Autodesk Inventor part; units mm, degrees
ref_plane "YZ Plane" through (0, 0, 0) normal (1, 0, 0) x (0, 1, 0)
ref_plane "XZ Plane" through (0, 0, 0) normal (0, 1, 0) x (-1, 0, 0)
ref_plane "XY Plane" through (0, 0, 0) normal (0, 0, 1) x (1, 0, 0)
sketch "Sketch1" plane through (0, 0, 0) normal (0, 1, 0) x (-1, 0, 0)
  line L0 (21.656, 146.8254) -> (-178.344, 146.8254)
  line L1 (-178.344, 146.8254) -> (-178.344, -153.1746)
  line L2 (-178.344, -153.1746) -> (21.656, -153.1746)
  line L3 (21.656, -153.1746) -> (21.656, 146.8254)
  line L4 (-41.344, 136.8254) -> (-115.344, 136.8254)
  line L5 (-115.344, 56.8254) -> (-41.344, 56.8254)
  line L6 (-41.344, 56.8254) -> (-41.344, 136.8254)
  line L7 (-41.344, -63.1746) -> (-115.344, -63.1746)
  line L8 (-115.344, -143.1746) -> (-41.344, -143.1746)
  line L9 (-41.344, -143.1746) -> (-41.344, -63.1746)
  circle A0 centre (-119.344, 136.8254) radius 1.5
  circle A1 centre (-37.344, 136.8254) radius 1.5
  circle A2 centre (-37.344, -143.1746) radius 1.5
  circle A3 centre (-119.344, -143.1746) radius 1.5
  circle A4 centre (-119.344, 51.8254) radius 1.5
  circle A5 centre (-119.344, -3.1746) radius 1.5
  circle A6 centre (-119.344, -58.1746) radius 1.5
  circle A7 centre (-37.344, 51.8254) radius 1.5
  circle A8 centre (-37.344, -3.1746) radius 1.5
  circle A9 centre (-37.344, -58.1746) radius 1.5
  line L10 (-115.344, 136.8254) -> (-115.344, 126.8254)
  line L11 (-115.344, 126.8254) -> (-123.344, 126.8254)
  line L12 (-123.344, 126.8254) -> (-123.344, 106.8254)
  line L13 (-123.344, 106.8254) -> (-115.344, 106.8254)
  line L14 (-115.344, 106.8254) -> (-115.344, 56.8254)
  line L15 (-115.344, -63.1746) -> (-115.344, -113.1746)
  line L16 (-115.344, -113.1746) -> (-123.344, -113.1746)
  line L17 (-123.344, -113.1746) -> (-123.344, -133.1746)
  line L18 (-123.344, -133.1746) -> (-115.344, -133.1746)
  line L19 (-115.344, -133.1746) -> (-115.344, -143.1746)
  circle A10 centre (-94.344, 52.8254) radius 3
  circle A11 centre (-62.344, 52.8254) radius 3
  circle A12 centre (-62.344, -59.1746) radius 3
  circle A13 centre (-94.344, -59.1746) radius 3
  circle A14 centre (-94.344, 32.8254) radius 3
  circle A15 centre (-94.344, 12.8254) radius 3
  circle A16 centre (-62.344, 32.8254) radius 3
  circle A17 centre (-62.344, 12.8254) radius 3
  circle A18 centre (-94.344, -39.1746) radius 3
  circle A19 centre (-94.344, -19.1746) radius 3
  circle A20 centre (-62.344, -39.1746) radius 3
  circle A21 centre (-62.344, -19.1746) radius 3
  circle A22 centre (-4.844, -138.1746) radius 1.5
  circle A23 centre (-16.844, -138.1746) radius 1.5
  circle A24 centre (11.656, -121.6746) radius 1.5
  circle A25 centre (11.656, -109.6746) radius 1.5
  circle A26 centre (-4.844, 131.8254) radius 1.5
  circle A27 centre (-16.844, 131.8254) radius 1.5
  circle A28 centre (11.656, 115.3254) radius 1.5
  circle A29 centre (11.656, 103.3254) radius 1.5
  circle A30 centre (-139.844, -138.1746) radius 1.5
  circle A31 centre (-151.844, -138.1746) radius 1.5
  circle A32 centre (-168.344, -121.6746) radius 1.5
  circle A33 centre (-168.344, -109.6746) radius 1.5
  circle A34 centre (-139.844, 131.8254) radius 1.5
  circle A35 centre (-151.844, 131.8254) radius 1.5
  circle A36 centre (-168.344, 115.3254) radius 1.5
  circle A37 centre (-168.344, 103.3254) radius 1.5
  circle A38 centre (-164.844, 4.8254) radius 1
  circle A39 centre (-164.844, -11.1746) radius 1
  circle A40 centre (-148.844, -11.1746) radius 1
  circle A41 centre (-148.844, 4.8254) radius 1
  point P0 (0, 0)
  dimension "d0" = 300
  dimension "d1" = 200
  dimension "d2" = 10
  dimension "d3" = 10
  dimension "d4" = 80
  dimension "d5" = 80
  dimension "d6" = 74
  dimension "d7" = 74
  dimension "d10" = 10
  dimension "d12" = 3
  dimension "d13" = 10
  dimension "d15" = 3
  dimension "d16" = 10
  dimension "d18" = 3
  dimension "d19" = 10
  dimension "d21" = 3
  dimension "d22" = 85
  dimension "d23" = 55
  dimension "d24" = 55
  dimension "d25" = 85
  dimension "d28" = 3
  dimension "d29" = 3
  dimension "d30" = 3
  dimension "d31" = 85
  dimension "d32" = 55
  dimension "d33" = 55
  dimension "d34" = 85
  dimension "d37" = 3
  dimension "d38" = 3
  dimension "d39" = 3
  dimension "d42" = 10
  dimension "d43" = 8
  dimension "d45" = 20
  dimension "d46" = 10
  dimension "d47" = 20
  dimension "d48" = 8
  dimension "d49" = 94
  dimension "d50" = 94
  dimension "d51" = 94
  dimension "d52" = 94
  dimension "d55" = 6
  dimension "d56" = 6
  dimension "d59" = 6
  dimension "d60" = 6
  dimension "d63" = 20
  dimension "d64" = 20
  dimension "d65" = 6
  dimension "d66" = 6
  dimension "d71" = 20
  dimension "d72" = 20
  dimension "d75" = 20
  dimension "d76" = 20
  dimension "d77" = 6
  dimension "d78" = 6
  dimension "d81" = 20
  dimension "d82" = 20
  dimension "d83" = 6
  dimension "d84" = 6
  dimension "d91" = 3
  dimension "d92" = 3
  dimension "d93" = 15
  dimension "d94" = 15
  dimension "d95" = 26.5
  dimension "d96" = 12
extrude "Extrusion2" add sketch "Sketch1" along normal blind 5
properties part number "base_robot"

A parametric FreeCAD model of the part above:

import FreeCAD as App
import Part
import Sketcher

V = App.Vector
Q = App.Units.Quantity

doc = App.newDocument("Part")
params = doc.addObject("Spreadsheet::Sheet", "Params")
for row, (alias, value) in enumerate([
    ("sketch1_diameter", "3 mm"),
    ("sketch1_diameter2", "6 mm"),
    ("sketch1_width", "200 mm"),
    ("sketch1_width2", "74 mm"),
    ("sketch1_width3", "8 mm"),
    ("pad1_length", "5 mm"),
], start=1):
    params.set(f"A{row}", alias)
    params.set(f"B{row}", "=" + value)
    params.setAlias(f"B{row}", alias)

body = doc.addObject("PartDesign::Body", "Body")

sketch1 = body.newObject("Sketcher::SketchObject", "Sketch")
sketch1.AttachmentSupport = (doc.getObject("XZ_Plane"), [""])
sketch1.MapMode = "FlatFace"
sketch1.addGeometry([
    Part.LineSegment(V(-21.7, -153.2, 0), V(-21.7, 146.8, 0)),
    Part.LineSegment(V(-21.7, 146.8, 0), V(178.3, 146.8, 0)),
    Part.LineSegment(V(178.3, 146.8, 0), V(178.3, -153.2, 0)),
    Part.LineSegment(V(178.3, -153.2, 0), V(-21.7, -153.2, 0)),
    Part.Circle(V(168.3, -121.7, 0), V(0, 0, 1), 1.5),
    Part.Circle(V(151.8, -138.2, 0), V(0, 0, 1), 1.5),
    Part.Circle(V(139.8, -138.2, 0), V(0, 0, 1), 1.5),
    Part.Circle(V(168.3, -109.7, 0), V(0, 0, 1), 1.5),
    Part.Circle(V(119.3, -143.2, 0), V(0, 0, 1), 1.5),
    Part.LineSegment(V(115.3, -63.2, 0), V(41.3, -63.2, 0)),
    Part.LineSegment(V(41.3, -63.2, 0), V(41.3, -143.2, 0)),
    Part.LineSegment(V(41.3, -143.2, 0), V(115.3, -143.2, 0)),
    Part.LineSegment(V(115.3, -143.2, 0), V(115.3, -133.2, 0)),
    Part.LineSegment(V(115.3, -133.2, 0), V(123.3, -133.2, 0)),
    Part.LineSegment(V(123.3, -133.2, 0), V(123.3, -113.2, 0)),
    Part.LineSegment(V(123.3, -113.2, 0), V(115.3, -113.2, 0)),
    Part.LineSegment(V(115.3, -113.2, 0), V(115.3, -63.2, 0)),
    Part.Circle(V(164.8, -11.2, 0), V(0, 0, 1), 1),
    Part.Circle(V(148.8, -11.2, 0), V(0, 0, 1), 1),
    Part.Circle(V(119.3, -58.2, 0), V(0, 0, 1), 1.5),
    Part.Circle(V(94.3, -59.2, 0), V(0, 0, 1), 3),
    Part.Circle(V(94.3, -39.2, 0), V(0, 0, 1), 3),
    Part.Circle(V(94.3, -19.2, 0), V(0, 0, 1), 3),
    Part.Circle(V(37.3, -143.2, 0), V(0, 0, 1), 1.5),
    Part.Circle(V(16.8, -138.2, 0), V(0, 0, 1), 1.5),
    Part.Circle(V(4.8, -138.2, 0), V(0, 0, 1), 1.5),
    Part.Circle(V(-11.7, -121.7, 0), V(0, 0, 1), 1.5),
    Part.Circle(V(-11.7, -109.7, 0), V(0, 0, 1), 1.5),
    Part.Circle(V(62.3, -59.2, 0), V(0, 0, 1), 3),
    Part.Circle(V(37.3, -58.2, 0), V(0, 0, 1), 1.5),
    Part.Circle(V(62.3, -39.2, 0), V(0, 0, 1), 3),
    Part.Circle(V(62.3, -19.2, 0), V(0, 0, 1), 3),
    Part.Circle(V(164.8, 4.8, 0), V(0, 0, 1), 1),
    Part.Circle(V(148.8, 4.8, 0), V(0, 0, 1), 1),
    Part.Circle(V(119.3, -3.2, 0), V(0, 0, 1), 1.5),
    Part.Circle(V(94.3, 12.8, 0), V(0, 0, 1), 3),
    Part.Circle(V(94.3, 32.8, 0), V(0, 0, 1), 3),
    Part.Circle(V(119.3, 51.8, 0), V(0, 0, 1), 1.5),
    Part.Circle(V(94.3, 52.8, 0), V(0, 0, 1), 3),
    Part.Circle(V(168.3, 103.3, 0), V(0, 0, 1), 1.5),
    Part.Circle(V(168.3, 115.3, 0), V(0, 0, 1), 1.5),
    Part.Circle(V(151.8, 131.8, 0), V(0, 0, 1), 1.5),
    Part.Circle(V(139.8, 131.8, 0), V(0, 0, 1), 1.5),
    Part.LineSegment(V(115.3, 136.8, 0), V(41.3, 136.8, 0)),
    Part.LineSegment(V(41.3, 136.8, 0), V(41.3, 56.8, 0)),
    Part.LineSegment(V(41.3, 56.8, 0), V(115.3, 56.8, 0)),
    Part.LineSegment(V(115.3, 56.8, 0), V(115.3, 106.8, 0)),
    Part.LineSegment(V(115.3, 106.8, 0), V(123.3, 106.8, 0)),
    Part.LineSegment(V(123.3, 106.8, 0), V(123.3, 126.8, 0)),
    Part.LineSegment(V(123.3, 126.8, 0), V(115.3, 126.8, 0)),
    Part.LineSegment(V(115.3, 126.8, 0), V(115.3, 136.8, 0)),
    Part.Circle(V(119.3, 136.8, 0), V(0, 0, 1), 1.5),
    Part.Circle(V(62.3, 12.8, 0), V(0, 0, 1), 3),
    Part.Circle(V(62.3, 32.8, 0), V(0, 0, 1), 3),
    Part.Circle(V(37.3, -3.2, 0), V(0, 0, 1), 1.5),
    Part.Circle(V(62.3, 52.8, 0), V(0, 0, 1), 3),
    Part.Circle(V(37.3, 51.8, 0), V(0, 0, 1), 1.5),
    Part.Circle(V(37.3, 136.8, 0), V(0, 0, 1), 1.5),
    Part.Circle(V(-11.7, 103.3, 0), V(0, 0, 1), 1.5),
    Part.Circle(V(16.8, 131.8, 0), V(0, 0, 1), 1.5),
    Part.Circle(V(4.8, 131.8, 0), V(0, 0, 1), 1.5),
    Part.Circle(V(-11.7, 115.3, 0), V(0, 0, 1), 1.5),
], False)
sketch1.addConstraint([
    Sketcher.Constraint("Coincident", 0, 2, 1, 1),
    Sketcher.Constraint("Coincident", 1, 2, 2, 1),
    Sketcher.Constraint("Coincident", 2, 2, 3, 1),
    Sketcher.Constraint("Coincident", 3, 2, 0, 1),
    Sketcher.Constraint("Coincident", 9, 2, 10, 1),
    Sketcher.Constraint("Coincident", 10, 2, 11, 1),
    Sketcher.Constraint("Coincident", 11, 2, 12, 1),
    Sketcher.Constraint("Coincident", 12, 2, 13, 1),
    Sketcher.Constraint("Coincident", 13, 2, 14, 1),
    Sketcher.Constraint("Coincident", 14, 2, 15, 1),
    Sketcher.Constraint("Coincident", 15, 2, 16, 1),
    Sketcher.Constraint("Coincident", 16, 2, 9, 1),
    Sketcher.Constraint("Coincident", 43, 2, 44, 1),
    Sketcher.Constraint("Coincident", 44, 2, 45, 1),
    Sketcher.Constraint("Coincident", 45, 2, 46, 1),
    Sketcher.Constraint("Coincident", 46, 2, 47, 1),
    Sketcher.Constraint("Coincident", 47, 2, 48, 1),
    Sketcher.Constraint("Coincident", 48, 2, 49, 1),
    Sketcher.Constraint("Coincident", 49, 2, 50, 1),
    Sketcher.Constraint("Coincident", 50, 2, 43, 1),
    Sketcher.Constraint("Vertical", 0),
    Sketcher.Constraint("Horizontal", 1),
    Sketcher.Constraint("Vertical", 2),
    Sketcher.Constraint("Horizontal", 3),
    Sketcher.Constraint("Horizontal", 9),
    Sketcher.Constraint("Vertical", 10),
    Sketcher.Constraint("Horizontal", 11),
    Sketcher.Constraint("Vertical", 12),
    Sketcher.Constraint("Horizontal", 13),
    Sketcher.Constraint("Vertical", 14),
    Sketcher.Constraint("Horizontal", 15),
    Sketcher.Constraint("Vertical", 16),
    Sketcher.Constraint("Horizontal", 43),
    Sketcher.Constraint("Vertical", 44),
    Sketcher.Constraint("Horizontal", 45),
    Sketcher.Constraint("Vertical", 46),
    Sketcher.Constraint("Horizontal", 47),
    Sketcher.Constraint("Vertical", 48),
    Sketcher.Constraint("Horizontal", 49),
    Sketcher.Constraint("Vertical", 50),
    Sketcher.Constraint("Equal", 4, 5),
    Sketcher.Constraint("Equal", 5, 6),
    Sketcher.Constraint("Equal", 6, 7),
    Sketcher.Constraint("Equal", 7, 8),
    Sketcher.Constraint("Equal", 17, 18),
    Sketcher.Constraint("Equal", 8, 19),
    Sketcher.Constraint("Equal", 20, 21),
    Sketcher.Constraint("Equal", 21, 22),
    Sketcher.Constraint("Equal", 19, 23),
    Sketcher.Constraint("Equal", 23, 24),
    Sketcher.Constraint("Equal", 24, 25),
    Sketcher.Constraint("Equal", 25, 26),
    Sketcher.Constraint("Equal", 26, 27),
    Sketcher.Constraint("Equal", 22, 28),
    Sketcher.Constraint("Equal", 27, 29),
    Sketcher.Constraint("Equal", 28, 30),
    Sketcher.Constraint("Equal", 30, 31),
    Sketcher.Constraint("Equal", 18, 32),
    Sketcher.Constraint("Equal", 32, 33),
    Sketcher.Constraint("Equal", 29, 34),
    Sketcher.Constraint("Equal", 31, 35),
    Sketcher.Constraint("Equal", 35, 36),
    Sketcher.Constraint("Equal", 34, 37),
    Sketcher.Constraint("Equal", 36, 38),
    Sketcher.Constraint("Equal", 37, 39),
    Sketcher.Constraint("Equal", 39, 40),
    Sketcher.Constraint("Equal", 40, 41),
    Sketcher.Constraint("Equal", 41, 42),
    Sketcher.Constraint("Equal", 42, 51),
    Sketcher.Constraint("Equal", 38, 52),
    Sketcher.Constraint("Equal", 52, 53),
    Sketcher.Constraint("Equal", 51, 54),
    Sketcher.Constraint("Equal", 53, 55),
    Sketcher.Constraint("Equal", 54, 56),
    Sketcher.Constraint("Equal", 56, 57),
    Sketcher.Constraint("Equal", 57, 58),
    Sketcher.Constraint("Equal", 58, 59),
    Sketcher.Constraint("Equal", 59, 60),
    Sketcher.Constraint("Equal", 60, 61),
    Sketcher.Constraint("Horizontal", 5, 3, 6, 3),
    Sketcher.Constraint("Horizontal", 17, 3, 18, 3),
    Sketcher.Constraint("Horizontal", 8, 3, 23, 3),
    Sketcher.Constraint("Horizontal", 6, 3, 24, 3),
    Sketcher.Constraint("Horizontal", 24, 3, 25, 3),
    Sketcher.Constraint("Horizontal", 4, 3, 26, 3),
    Sketcher.Constraint("Horizontal", 7, 3, 27, 3),
    Sketcher.Constraint("Horizontal", 20, 3, 28, 3),
    Sketcher.Constraint("Horizontal", 19, 3, 29, 3),
    Sketcher.Constraint("Horizontal", 21, 3, 30, 3),
    Sketcher.Constraint("Horizontal", 22, 3, 31, 3),
    Sketcher.Constraint("Horizontal", 32, 3, 33, 3),
    Sketcher.Constraint("Horizontal", 41, 3, 42, 3),
    Sketcher.Constraint("Horizontal", 35, 3, 52, 3),
    Sketcher.Constraint("Horizontal", 36, 3, 53, 3),
    Sketcher.Constraint("Horizontal", 34, 3, 54, 3),
    Sketcher.Constraint("Horizontal", 38, 3, 55, 3),
    Sketcher.Constraint("Horizontal", 37, 3, 56, 3),
    Sketcher.Constraint("Horizontal", 51, 3, 57, 3),
    Sketcher.Constraint("Horizontal", 39, 3, 58, 3),
    Sketcher.Constraint("Horizontal", 42, 3, 59, 3),
    Sketcher.Constraint("Horizontal", 59, 3, 60, 3),
    Sketcher.Constraint("Horizontal", 40, 3, 61, 3),
    Sketcher.Constraint("Horizontal", 23, 3, 10, 2),
    Sketcher.Constraint("Horizontal", 57, 3, 43, 2),
    Sketcher.Constraint("Vertical", 4, 3, 7, 3),
    Sketcher.Constraint("Vertical", 8, 3, 19, 3),
    Sketcher.Constraint("Vertical", 20, 3, 21, 3),
    Sketcher.Constraint("Vertical", 21, 3, 22, 3),
    Sketcher.Constraint("Vertical", 26, 3, 27, 3),
    Sketcher.Constraint("Vertical", 23, 3, 29, 3),
    Sketcher.Constraint("Vertical", 28, 3, 30, 3),
    Sketcher.Constraint("Vertical", 30, 3, 31, 3),
    Sketcher.Constraint("Vertical", 17, 3, 32, 3),
    Sketcher.Constraint("Vertical", 18, 3, 33, 3),
    Sketcher.Constraint("Vertical", 19, 3, 34, 3),
    Sketcher.Constraint("Vertical", 22, 3, 35, 3),
    Sketcher.Constraint("Vertical", 35, 3, 36, 3),
    Sketcher.Constraint("Vertical", 34, 3, 37, 3),
    Sketcher.Constraint("Vertical", 36, 3, 38, 3),
    Sketcher.Constraint("Vertical", 7, 3, 39, 3),
    Sketcher.Constraint("Vertical", 39, 3, 40, 3),
    Sketcher.Constraint("Vertical", 5, 3, 41, 3),
    Sketcher.Constraint("Vertical", 6, 3, 42, 3),
    Sketcher.Constraint("Vertical", 37, 3, 51, 3),
    Sketcher.Constraint("Vertical", 31, 3, 52, 3),
    Sketcher.Constraint("Vertical", 52, 3, 53, 3),
    Sketcher.Constraint("Vertical", 29, 3, 54, 3),
    Sketcher.Constraint("Vertical", 53, 3, 55, 3),
    Sketcher.Constraint("Vertical", 54, 3, 56, 3),
    Sketcher.Constraint("Vertical", 56, 3, 57, 3),
    Sketcher.Constraint("Vertical", 27, 3, 58, 3),
    Sketcher.Constraint("Vertical", 24, 3, 59, 3),
    Sketcher.Constraint("Vertical", 25, 3, 60, 3),
    Sketcher.Constraint("Vertical", 58, 3, 61, 3),
    Sketcher.Constraint("Vertical", 12, 2, 15, 2),
    Sketcher.Constraint("Vertical", 10, 2, 43, 2),
    Sketcher.Constraint("Vertical", 16, 2, 45, 2),
    Sketcher.Constraint("Vertical", 14, 2, 47, 2),
    Sketcher.Constraint("Vertical", 46, 2, 49, 2),
    Sketcher.Constraint("Equal", 10, 44),
    Sketcher.Constraint("Equal", 16, 46),
    Sketcher.Constraint("Equal", 14, 48),
    Sketcher.Constraint("Diameter", 4, Q("3 mm")),
    Sketcher.Constraint("Diameter", 20, Q("6 mm")),
    Sketcher.Constraint("DistanceX", 1, 1, 1, 2, Q("200 mm")),
    Sketcher.Constraint("DistanceX", 9, 2, 9, 1, Q("74 mm")),
    Sketcher.Constraint("DistanceX", 13, 1, 13, 2, Q("8 mm")),
    Sketcher.Constraint("DistanceY", 0, 1, 0, 2, Q("300 mm")),
    Sketcher.Constraint("DistanceY", 10, 2, 10, 1, Q("80 mm")),
    Sketcher.Constraint("DistanceY", 12, 1, 12, 2, Q("10 mm")),
    Sketcher.Constraint("DistanceY", 14, 1, 14, 2, Q("20 mm")),
    Sketcher.Constraint("Diameter", 17, Q("2 mm")),
    Sketcher.Constraint("DistanceX", -1, 1, 4, 3, Q("168.344 mm")),
    Sketcher.Constraint("DistanceX", -1, 1, 5, 3, Q("151.844 mm")),
    Sketcher.Constraint("DistanceX", -1, 1, 6, 3, Q("139.844 mm")),
    Sketcher.Constraint("DistanceX", -1, 1, 8, 3, Q("119.344 mm")),
    Sketcher.Constraint("DistanceX", -1, 1, 17, 3, Q("164.844 mm")),
    Sketcher.Constraint("DistanceX", -1, 1, 18, 3, Q("148.844 mm")),
    Sketcher.Constraint("DistanceX", -1, 1, 20, 3, Q("94.344 mm")),
    Sketcher.Constraint("DistanceX", -1, 1, 23, 3, Q("37.344 mm")),
    Sketcher.Constraint("DistanceX", -1, 1, 24, 3, Q("16.844 mm")),
    Sketcher.Constraint("DistanceX", -1, 1, 25, 3, Q("4.844 mm")),
    Sketcher.Constraint("DistanceX", 26, 3, -1, 1, Q("11.656 mm")),
    Sketcher.Constraint("DistanceX", -1, 1, 28, 3, Q("62.344 mm")),
    Sketcher.Constraint("DistanceX", 0, 2, -1, 1, Q("21.656 mm")),
    Sketcher.Constraint("DistanceX", -1, 1, 9, 2, Q("41.344 mm")),
    Sketcher.Constraint("DistanceY", 4, 3, -1, 1, Q("121.6746 mm")),
    Sketcher.Constraint("DistanceY", 5, 3, -1, 1, Q("138.1746 mm")),
    Sketcher.Constraint("DistanceY", 7, 3, -1, 1, Q("109.6746 mm")),
    Sketcher.Constraint("DistanceY", 8, 3, -1, 1, Q("143.1746 mm")),
    Sketcher.Constraint("DistanceY", 17, 3, -1, 1, Q("11.1746 mm")),
    Sketcher.Constraint("DistanceY", 19, 3, -1, 1, Q("58.1746 mm")),
    Sketcher.Constraint("DistanceY", 20, 3, -1, 1, Q("59.1746 mm")),
    Sketcher.Constraint("DistanceY", 21, 3, -1, 1, Q("39.1746 mm")),
    Sketcher.Constraint("DistanceY", 22, 3, -1, 1, Q("19.1746 mm")),
    Sketcher.Constraint("DistanceY", -1, 1, 32, 3, Q("4.8254 mm")),
    Sketcher.Constraint("DistanceY", 34, 3, -1, 1, Q("3.1746 mm")),
    Sketcher.Constraint("DistanceY", -1, 1, 35, 3, Q("12.8254 mm")),
    Sketcher.Constraint("DistanceY", -1, 1, 36, 3, Q("32.8254 mm")),
    Sketcher.Constraint("DistanceY", -1, 1, 37, 3, Q("51.8254 mm")),
    Sketcher.Constraint("DistanceY", -1, 1, 38, 3, Q("52.8254 mm")),
    Sketcher.Constraint("DistanceY", -1, 1, 39, 3, Q("103.3254 mm")),
    Sketcher.Constraint("DistanceY", -1, 1, 40, 3, Q("115.3254 mm")),
    Sketcher.Constraint("DistanceY", -1, 1, 41, 3, Q("131.8254 mm")),
    Sketcher.Constraint("DistanceY", -1, 1, 51, 3, Q("136.8254 mm")),
    Sketcher.Constraint("DistanceY", -1, 1, 0, 2, Q("146.8254 mm")),
])
sketch1.setExpression("Constraints[142]", "Params.sketch1_diameter")
sketch1.setExpression("Constraints[143]", "Params.sketch1_diameter2")
sketch1.setExpression("Constraints[144]", "Params.sketch1_width")
sketch1.setExpression("Constraints[145]", "Params.sketch1_width2")
sketch1.setExpression("Constraints[146]", "Params.sketch1_width3")
pad1 = body.newObject("PartDesign::Pad", "Pad")
pad1.Profile = sketch1
pad1.setExpression("Length", "Params.pad1_length")
pad1.Reversed = True

doc.recompute()
